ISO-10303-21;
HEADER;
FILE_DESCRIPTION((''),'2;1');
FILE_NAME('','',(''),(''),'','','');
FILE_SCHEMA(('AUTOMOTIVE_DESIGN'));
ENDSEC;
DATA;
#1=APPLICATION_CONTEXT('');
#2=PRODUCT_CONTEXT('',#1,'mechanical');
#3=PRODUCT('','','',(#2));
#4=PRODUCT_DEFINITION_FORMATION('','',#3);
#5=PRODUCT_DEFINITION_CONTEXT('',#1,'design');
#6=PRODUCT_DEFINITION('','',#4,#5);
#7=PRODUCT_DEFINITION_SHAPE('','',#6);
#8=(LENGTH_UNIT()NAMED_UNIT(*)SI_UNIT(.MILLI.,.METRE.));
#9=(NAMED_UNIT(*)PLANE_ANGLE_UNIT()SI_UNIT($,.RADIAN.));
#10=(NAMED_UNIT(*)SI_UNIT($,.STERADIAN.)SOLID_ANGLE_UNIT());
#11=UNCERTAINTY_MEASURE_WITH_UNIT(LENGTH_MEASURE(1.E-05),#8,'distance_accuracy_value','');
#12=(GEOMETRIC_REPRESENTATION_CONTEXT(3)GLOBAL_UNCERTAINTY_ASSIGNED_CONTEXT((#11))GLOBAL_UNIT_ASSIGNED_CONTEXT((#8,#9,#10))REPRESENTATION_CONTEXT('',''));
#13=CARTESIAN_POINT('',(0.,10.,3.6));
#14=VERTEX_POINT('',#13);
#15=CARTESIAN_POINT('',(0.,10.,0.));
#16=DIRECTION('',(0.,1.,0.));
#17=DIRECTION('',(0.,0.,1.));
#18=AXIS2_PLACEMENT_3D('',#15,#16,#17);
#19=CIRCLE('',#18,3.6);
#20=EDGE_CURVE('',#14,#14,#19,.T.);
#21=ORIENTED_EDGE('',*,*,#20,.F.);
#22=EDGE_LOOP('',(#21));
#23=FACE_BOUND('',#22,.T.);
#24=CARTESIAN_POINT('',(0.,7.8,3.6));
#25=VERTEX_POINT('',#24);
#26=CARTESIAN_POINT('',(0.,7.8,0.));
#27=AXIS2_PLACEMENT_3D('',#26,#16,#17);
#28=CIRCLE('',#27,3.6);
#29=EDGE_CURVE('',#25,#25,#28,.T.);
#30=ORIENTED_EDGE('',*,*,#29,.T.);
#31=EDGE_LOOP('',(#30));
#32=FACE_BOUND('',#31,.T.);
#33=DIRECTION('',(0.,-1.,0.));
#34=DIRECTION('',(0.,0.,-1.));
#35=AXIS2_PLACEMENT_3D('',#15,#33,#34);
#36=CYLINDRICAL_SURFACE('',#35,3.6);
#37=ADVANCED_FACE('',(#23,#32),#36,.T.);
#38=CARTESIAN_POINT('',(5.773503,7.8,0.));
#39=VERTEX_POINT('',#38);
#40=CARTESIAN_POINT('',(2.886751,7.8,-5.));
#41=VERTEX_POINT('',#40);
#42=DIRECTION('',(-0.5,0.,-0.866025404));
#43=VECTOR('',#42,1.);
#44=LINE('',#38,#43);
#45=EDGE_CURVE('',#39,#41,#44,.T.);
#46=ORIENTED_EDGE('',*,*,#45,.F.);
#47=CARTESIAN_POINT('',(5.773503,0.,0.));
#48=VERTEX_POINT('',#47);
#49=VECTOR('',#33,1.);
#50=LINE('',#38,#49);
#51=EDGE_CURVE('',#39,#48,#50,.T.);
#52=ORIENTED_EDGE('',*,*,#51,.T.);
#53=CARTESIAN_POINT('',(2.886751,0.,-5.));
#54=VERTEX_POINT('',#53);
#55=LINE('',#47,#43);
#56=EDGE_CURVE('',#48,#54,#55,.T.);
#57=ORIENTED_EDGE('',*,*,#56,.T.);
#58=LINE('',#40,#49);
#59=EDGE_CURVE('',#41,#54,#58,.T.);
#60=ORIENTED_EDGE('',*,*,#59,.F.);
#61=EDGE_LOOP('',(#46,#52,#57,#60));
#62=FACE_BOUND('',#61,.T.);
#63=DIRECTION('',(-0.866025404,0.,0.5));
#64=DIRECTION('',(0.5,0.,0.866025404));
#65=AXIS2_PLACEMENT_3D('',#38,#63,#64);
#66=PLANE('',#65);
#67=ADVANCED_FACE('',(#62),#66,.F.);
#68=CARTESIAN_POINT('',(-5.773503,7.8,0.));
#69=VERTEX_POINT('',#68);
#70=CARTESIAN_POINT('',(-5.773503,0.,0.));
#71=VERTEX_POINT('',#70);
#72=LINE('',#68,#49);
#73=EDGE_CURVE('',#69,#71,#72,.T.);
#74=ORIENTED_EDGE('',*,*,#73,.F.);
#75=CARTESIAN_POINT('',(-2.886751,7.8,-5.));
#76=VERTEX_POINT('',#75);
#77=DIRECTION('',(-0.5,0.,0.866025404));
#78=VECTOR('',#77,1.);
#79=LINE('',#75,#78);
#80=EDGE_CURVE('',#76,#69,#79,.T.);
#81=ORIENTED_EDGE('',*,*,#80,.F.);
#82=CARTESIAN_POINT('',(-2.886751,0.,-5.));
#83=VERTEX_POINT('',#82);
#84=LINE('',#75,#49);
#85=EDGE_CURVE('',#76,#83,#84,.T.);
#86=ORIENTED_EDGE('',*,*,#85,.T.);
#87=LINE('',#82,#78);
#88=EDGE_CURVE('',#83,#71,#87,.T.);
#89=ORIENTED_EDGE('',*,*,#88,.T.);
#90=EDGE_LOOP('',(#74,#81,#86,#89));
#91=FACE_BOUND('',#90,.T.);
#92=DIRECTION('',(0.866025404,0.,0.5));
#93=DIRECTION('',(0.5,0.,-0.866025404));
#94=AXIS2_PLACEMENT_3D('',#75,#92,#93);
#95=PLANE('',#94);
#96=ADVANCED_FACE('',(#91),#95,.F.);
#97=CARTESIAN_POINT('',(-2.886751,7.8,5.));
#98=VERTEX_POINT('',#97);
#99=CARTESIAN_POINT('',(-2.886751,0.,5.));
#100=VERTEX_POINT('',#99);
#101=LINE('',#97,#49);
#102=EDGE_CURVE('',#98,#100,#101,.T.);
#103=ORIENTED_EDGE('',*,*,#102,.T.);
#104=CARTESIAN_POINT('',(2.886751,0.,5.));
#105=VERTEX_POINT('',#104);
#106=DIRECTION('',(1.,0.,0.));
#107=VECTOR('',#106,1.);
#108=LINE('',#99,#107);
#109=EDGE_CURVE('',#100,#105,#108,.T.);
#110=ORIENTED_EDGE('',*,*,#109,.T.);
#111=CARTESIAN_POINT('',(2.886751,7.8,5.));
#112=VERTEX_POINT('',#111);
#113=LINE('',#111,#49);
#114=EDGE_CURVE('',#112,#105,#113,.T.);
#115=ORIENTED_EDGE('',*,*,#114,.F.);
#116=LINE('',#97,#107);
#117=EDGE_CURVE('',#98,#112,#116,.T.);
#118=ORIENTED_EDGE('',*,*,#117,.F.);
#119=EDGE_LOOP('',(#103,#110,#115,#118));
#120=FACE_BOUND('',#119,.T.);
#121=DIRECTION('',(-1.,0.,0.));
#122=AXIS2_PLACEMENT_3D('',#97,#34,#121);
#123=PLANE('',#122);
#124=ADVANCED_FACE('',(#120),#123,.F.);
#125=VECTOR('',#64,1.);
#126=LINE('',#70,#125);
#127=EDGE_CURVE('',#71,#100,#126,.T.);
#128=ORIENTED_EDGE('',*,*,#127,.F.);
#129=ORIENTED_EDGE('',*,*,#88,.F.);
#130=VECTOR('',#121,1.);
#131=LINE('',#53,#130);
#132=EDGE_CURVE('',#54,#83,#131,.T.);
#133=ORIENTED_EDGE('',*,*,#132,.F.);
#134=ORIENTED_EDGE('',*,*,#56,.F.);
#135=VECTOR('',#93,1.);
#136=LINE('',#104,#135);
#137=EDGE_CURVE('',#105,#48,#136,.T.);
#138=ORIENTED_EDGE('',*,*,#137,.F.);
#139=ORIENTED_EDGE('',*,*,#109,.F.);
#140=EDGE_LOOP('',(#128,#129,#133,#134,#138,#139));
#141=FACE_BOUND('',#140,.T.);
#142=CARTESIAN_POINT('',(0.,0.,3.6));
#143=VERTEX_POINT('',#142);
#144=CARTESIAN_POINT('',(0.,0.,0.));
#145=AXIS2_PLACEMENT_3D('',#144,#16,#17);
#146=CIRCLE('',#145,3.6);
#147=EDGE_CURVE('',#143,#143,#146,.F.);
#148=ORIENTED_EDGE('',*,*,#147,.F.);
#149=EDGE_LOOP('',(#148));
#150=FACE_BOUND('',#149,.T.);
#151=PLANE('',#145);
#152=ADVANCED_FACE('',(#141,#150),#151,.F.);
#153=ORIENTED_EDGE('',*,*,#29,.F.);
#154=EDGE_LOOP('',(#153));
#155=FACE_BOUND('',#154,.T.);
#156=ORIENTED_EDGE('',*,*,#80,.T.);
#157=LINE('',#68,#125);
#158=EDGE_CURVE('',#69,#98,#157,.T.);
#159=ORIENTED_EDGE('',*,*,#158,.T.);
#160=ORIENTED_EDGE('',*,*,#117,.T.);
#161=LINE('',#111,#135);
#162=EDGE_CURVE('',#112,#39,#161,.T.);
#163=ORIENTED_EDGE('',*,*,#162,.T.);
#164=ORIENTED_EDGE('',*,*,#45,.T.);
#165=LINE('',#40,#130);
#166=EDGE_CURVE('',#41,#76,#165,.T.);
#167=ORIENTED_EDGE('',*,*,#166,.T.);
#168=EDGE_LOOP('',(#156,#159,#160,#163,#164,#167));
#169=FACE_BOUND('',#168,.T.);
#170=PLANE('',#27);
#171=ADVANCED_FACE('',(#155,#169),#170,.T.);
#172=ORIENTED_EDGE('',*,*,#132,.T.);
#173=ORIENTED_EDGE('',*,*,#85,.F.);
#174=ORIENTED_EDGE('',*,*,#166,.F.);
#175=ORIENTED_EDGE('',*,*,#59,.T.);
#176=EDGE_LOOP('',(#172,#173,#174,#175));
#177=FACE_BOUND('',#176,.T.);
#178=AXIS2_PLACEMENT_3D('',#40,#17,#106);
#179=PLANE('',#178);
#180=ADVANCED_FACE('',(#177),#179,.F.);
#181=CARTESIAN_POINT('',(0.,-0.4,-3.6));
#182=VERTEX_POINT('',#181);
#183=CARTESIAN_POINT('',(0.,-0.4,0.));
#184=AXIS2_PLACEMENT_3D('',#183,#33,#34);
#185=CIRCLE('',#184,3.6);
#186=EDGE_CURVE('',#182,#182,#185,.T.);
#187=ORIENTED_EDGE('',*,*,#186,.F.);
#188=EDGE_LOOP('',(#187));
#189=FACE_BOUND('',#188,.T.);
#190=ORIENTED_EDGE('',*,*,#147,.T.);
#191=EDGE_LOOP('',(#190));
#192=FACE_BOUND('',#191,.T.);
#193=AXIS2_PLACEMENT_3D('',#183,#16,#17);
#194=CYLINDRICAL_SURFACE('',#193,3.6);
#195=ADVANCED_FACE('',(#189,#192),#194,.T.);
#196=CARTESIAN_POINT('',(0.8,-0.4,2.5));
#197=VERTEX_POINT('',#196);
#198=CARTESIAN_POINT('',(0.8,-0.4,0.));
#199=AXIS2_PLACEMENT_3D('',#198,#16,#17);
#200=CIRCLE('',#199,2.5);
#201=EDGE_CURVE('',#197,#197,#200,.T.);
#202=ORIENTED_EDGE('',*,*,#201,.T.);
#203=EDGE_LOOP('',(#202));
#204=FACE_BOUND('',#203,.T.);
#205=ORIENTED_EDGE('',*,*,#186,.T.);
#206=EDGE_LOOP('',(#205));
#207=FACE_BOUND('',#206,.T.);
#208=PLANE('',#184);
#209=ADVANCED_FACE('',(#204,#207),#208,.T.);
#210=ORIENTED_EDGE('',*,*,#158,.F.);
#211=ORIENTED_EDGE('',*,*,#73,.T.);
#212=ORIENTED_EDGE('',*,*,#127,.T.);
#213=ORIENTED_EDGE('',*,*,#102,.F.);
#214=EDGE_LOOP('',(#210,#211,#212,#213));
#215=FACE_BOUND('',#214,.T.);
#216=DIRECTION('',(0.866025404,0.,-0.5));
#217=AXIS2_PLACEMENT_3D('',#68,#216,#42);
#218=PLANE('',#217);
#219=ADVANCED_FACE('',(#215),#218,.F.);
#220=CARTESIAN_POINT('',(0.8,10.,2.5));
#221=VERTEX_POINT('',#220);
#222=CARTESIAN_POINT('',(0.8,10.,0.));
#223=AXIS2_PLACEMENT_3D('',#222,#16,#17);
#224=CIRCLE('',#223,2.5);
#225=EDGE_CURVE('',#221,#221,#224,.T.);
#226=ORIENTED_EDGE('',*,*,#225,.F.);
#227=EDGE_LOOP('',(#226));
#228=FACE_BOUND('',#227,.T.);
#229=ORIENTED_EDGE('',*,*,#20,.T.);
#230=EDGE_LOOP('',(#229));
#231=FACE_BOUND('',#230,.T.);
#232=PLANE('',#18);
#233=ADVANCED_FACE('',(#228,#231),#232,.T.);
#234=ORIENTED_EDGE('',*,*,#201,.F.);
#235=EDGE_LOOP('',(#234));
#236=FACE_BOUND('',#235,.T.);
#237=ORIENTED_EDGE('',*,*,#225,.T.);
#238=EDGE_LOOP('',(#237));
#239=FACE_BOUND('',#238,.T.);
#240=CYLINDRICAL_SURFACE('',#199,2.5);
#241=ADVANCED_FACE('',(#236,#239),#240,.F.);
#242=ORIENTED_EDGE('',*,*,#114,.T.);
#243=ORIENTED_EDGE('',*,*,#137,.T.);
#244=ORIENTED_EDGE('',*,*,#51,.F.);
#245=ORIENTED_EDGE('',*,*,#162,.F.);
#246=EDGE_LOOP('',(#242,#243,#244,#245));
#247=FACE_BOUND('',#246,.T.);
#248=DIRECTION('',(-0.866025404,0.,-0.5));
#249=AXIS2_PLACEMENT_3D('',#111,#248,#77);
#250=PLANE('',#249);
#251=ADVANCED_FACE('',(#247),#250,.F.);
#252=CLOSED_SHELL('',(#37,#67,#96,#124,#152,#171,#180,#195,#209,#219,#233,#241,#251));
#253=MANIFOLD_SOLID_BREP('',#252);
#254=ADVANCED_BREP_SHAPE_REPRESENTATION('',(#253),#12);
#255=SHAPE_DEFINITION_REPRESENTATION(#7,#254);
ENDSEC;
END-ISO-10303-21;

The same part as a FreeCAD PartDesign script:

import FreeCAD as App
import Part
import Sketcher

V = App.Vector
Q = App.Units.Quantity


def add_polygon(sketch, points):
    """Adds a closed chain of lines whose ends are joined by coincident constraints."""
    first, n = sketch.GeometryCount, len(points)
    for a, b in zip(points, points[1:] + points[:1]):
        sketch.addGeometry(Part.LineSegment(App.Vector(*a, 0), App.Vector(*b, 0)), False)
    for i in range(n):
        sketch.addConstraint(Sketcher.Constraint("Coincident", first + i, 2, first + (i + 1) % n, 1))

doc = App.newDocument("Part")
params = doc.addObject("Spreadsheet::Sheet", "Params")
for row, (alias, value) in enumerate([
    ("pad1_length", "7.8 mm"),
    ("sketch2_diameter", "7.2 mm"),
    ("pad2_length", "2.2 mm"),
    ("sketch3_diameter", "7.2 mm"),
    ("pad3_length", "0.4 mm"),
    ("sketch4_diameter", "5 mm"),
], start=1):
    params.set(f"A{row}", alias)
    params.set(f"B{row}", "=" + value)
    params.setAlias(f"B{row}", alias)

body = doc.addObject("PartDesign::Body", "Body")

# Sketch on XZ plane
sketch1 = body.newObject("Sketcher::SketchObject", "Sketch")
sketch1.AttachmentSupport = (doc.getObject("XZ_Plane"), [""])
sketch1.MapMode = "FlatFace"
add_polygon(sketch1, [(6, 0), (3, -5), (-3, -5), (-6, 0), (-3, 5), (3, 5)])  # lines 0-5
sketch1.addConstraint([
    Sketcher.Constraint("Horizontal", 1),
    Sketcher.Constraint("Horizontal", 4),
    Sketcher.Constraint("Symmetric", 0, 2, 3, 2, -1, 1),
    Sketcher.Constraint("Symmetric", 2, 2, 5, 2, -1, 1),
    Sketcher.Constraint("PointOnObject", 2, 2, -1),
    Sketcher.Constraint("Parallel", 2, 5),
    Sketcher.Constraint("Vertical", 1, 2, 3, 2),
    Sketcher.Constraint("Angle", 0, Q("-120 deg")),
    Sketcher.Constraint("DistanceY", 0, 2, -1, 1, Q("5 mm")),
    Sketcher.Constraint("DistanceX", 1, 2, 1, 1, Q("5.773503 mm")),
])
pad1 = body.newObject("PartDesign::Pad", "Pad")
pad1.Profile = sketch1
pad1.setExpression("Length", "Params.pad1_length")
pad1.Reversed = True

# Sketch on XZ plane
sketch2 = body.newObject("Sketcher::SketchObject", "Sketch001")
sketch2.AttachmentSupport = (doc.getObject("XZ_Plane"), [""])
sketch2.MapMode = "FlatFace"
sketch2.AttachmentOffset = App.Placement(V(0, 0, -7.8), App.Rotation())
sketch2.addGeometry(Part.Circle(V(0, 0, 0), V(0, 0, 1), 3.6), False)
sketch2.addConstraint([
    Sketcher.Constraint("Coincident", 0, 3, -1, 1),
    Sketcher.Constraint("Diameter", 0, Q("7.2 mm")),
])
sketch2.setExpression("Constraints[1]", "Params.sketch2_diameter")
pad2 = body.newObject("PartDesign::Pad", "Pad001")
pad2.Profile = sketch2
pad2.setExpression("Length", "Params.pad2_length")
pad2.Reversed = True

# Sketch on XZ plane
sketch3 = body.newObject("Sketcher::SketchObject", "Sketch002")
sketch3.AttachmentSupport = (doc.getObject("XZ_Plane"), [""])
sketch3.MapMode = "FlatFace"
sketch3.AttachmentOffset = App.Placement(V(0, 0, 0.4), App.Rotation())
sketch3.addGeometry(Part.Circle(V(0, 0, 0), V(0, 0, 1), 3.6), False)
sketch3.addConstraint([
    Sketcher.Constraint("Coincident", 0, 3, -1, 1),
    Sketcher.Constraint("Diameter", 0, Q("7.2 mm")),
])
sketch3.setExpression("Constraints[1]", "Params.sketch3_diameter")
pad3 = body.newObject("PartDesign::Pad", "Pad002")
pad3.Profile = sketch3
pad3.setExpression("Length", "Params.pad3_length")
pad3.Reversed = True

# Sketch on XZ plane
sketch4 = body.newObject("Sketcher::SketchObject", "Sketch003")
sketch4.AttachmentSupport = (doc.getObject("XZ_Plane"), [""])
sketch4.MapMode = "FlatFace"
sketch4.addGeometry(Part.Circle(V(0.8, 0, 0), V(0, 0, 1), 2.5), False)
sketch4.addConstraint([
    Sketcher.Constraint("PointOnObject", 0, 3, -1),
    Sketcher.Constraint("Diameter", 0, Q("5 mm")),
    Sketcher.Constraint("DistanceX", -1, 1, 0, 3, Q("0.8 mm")),
])
sketch4.setExpression("Constraints[1]", "Params.sketch4_diameter")
pocket1 = body.newObject("PartDesign::Pocket", "Pocket")
pocket1.Profile = sketch4
pocket1.Type = "ThroughAll"
pocket1.Midplane = True

doc.recompute()
